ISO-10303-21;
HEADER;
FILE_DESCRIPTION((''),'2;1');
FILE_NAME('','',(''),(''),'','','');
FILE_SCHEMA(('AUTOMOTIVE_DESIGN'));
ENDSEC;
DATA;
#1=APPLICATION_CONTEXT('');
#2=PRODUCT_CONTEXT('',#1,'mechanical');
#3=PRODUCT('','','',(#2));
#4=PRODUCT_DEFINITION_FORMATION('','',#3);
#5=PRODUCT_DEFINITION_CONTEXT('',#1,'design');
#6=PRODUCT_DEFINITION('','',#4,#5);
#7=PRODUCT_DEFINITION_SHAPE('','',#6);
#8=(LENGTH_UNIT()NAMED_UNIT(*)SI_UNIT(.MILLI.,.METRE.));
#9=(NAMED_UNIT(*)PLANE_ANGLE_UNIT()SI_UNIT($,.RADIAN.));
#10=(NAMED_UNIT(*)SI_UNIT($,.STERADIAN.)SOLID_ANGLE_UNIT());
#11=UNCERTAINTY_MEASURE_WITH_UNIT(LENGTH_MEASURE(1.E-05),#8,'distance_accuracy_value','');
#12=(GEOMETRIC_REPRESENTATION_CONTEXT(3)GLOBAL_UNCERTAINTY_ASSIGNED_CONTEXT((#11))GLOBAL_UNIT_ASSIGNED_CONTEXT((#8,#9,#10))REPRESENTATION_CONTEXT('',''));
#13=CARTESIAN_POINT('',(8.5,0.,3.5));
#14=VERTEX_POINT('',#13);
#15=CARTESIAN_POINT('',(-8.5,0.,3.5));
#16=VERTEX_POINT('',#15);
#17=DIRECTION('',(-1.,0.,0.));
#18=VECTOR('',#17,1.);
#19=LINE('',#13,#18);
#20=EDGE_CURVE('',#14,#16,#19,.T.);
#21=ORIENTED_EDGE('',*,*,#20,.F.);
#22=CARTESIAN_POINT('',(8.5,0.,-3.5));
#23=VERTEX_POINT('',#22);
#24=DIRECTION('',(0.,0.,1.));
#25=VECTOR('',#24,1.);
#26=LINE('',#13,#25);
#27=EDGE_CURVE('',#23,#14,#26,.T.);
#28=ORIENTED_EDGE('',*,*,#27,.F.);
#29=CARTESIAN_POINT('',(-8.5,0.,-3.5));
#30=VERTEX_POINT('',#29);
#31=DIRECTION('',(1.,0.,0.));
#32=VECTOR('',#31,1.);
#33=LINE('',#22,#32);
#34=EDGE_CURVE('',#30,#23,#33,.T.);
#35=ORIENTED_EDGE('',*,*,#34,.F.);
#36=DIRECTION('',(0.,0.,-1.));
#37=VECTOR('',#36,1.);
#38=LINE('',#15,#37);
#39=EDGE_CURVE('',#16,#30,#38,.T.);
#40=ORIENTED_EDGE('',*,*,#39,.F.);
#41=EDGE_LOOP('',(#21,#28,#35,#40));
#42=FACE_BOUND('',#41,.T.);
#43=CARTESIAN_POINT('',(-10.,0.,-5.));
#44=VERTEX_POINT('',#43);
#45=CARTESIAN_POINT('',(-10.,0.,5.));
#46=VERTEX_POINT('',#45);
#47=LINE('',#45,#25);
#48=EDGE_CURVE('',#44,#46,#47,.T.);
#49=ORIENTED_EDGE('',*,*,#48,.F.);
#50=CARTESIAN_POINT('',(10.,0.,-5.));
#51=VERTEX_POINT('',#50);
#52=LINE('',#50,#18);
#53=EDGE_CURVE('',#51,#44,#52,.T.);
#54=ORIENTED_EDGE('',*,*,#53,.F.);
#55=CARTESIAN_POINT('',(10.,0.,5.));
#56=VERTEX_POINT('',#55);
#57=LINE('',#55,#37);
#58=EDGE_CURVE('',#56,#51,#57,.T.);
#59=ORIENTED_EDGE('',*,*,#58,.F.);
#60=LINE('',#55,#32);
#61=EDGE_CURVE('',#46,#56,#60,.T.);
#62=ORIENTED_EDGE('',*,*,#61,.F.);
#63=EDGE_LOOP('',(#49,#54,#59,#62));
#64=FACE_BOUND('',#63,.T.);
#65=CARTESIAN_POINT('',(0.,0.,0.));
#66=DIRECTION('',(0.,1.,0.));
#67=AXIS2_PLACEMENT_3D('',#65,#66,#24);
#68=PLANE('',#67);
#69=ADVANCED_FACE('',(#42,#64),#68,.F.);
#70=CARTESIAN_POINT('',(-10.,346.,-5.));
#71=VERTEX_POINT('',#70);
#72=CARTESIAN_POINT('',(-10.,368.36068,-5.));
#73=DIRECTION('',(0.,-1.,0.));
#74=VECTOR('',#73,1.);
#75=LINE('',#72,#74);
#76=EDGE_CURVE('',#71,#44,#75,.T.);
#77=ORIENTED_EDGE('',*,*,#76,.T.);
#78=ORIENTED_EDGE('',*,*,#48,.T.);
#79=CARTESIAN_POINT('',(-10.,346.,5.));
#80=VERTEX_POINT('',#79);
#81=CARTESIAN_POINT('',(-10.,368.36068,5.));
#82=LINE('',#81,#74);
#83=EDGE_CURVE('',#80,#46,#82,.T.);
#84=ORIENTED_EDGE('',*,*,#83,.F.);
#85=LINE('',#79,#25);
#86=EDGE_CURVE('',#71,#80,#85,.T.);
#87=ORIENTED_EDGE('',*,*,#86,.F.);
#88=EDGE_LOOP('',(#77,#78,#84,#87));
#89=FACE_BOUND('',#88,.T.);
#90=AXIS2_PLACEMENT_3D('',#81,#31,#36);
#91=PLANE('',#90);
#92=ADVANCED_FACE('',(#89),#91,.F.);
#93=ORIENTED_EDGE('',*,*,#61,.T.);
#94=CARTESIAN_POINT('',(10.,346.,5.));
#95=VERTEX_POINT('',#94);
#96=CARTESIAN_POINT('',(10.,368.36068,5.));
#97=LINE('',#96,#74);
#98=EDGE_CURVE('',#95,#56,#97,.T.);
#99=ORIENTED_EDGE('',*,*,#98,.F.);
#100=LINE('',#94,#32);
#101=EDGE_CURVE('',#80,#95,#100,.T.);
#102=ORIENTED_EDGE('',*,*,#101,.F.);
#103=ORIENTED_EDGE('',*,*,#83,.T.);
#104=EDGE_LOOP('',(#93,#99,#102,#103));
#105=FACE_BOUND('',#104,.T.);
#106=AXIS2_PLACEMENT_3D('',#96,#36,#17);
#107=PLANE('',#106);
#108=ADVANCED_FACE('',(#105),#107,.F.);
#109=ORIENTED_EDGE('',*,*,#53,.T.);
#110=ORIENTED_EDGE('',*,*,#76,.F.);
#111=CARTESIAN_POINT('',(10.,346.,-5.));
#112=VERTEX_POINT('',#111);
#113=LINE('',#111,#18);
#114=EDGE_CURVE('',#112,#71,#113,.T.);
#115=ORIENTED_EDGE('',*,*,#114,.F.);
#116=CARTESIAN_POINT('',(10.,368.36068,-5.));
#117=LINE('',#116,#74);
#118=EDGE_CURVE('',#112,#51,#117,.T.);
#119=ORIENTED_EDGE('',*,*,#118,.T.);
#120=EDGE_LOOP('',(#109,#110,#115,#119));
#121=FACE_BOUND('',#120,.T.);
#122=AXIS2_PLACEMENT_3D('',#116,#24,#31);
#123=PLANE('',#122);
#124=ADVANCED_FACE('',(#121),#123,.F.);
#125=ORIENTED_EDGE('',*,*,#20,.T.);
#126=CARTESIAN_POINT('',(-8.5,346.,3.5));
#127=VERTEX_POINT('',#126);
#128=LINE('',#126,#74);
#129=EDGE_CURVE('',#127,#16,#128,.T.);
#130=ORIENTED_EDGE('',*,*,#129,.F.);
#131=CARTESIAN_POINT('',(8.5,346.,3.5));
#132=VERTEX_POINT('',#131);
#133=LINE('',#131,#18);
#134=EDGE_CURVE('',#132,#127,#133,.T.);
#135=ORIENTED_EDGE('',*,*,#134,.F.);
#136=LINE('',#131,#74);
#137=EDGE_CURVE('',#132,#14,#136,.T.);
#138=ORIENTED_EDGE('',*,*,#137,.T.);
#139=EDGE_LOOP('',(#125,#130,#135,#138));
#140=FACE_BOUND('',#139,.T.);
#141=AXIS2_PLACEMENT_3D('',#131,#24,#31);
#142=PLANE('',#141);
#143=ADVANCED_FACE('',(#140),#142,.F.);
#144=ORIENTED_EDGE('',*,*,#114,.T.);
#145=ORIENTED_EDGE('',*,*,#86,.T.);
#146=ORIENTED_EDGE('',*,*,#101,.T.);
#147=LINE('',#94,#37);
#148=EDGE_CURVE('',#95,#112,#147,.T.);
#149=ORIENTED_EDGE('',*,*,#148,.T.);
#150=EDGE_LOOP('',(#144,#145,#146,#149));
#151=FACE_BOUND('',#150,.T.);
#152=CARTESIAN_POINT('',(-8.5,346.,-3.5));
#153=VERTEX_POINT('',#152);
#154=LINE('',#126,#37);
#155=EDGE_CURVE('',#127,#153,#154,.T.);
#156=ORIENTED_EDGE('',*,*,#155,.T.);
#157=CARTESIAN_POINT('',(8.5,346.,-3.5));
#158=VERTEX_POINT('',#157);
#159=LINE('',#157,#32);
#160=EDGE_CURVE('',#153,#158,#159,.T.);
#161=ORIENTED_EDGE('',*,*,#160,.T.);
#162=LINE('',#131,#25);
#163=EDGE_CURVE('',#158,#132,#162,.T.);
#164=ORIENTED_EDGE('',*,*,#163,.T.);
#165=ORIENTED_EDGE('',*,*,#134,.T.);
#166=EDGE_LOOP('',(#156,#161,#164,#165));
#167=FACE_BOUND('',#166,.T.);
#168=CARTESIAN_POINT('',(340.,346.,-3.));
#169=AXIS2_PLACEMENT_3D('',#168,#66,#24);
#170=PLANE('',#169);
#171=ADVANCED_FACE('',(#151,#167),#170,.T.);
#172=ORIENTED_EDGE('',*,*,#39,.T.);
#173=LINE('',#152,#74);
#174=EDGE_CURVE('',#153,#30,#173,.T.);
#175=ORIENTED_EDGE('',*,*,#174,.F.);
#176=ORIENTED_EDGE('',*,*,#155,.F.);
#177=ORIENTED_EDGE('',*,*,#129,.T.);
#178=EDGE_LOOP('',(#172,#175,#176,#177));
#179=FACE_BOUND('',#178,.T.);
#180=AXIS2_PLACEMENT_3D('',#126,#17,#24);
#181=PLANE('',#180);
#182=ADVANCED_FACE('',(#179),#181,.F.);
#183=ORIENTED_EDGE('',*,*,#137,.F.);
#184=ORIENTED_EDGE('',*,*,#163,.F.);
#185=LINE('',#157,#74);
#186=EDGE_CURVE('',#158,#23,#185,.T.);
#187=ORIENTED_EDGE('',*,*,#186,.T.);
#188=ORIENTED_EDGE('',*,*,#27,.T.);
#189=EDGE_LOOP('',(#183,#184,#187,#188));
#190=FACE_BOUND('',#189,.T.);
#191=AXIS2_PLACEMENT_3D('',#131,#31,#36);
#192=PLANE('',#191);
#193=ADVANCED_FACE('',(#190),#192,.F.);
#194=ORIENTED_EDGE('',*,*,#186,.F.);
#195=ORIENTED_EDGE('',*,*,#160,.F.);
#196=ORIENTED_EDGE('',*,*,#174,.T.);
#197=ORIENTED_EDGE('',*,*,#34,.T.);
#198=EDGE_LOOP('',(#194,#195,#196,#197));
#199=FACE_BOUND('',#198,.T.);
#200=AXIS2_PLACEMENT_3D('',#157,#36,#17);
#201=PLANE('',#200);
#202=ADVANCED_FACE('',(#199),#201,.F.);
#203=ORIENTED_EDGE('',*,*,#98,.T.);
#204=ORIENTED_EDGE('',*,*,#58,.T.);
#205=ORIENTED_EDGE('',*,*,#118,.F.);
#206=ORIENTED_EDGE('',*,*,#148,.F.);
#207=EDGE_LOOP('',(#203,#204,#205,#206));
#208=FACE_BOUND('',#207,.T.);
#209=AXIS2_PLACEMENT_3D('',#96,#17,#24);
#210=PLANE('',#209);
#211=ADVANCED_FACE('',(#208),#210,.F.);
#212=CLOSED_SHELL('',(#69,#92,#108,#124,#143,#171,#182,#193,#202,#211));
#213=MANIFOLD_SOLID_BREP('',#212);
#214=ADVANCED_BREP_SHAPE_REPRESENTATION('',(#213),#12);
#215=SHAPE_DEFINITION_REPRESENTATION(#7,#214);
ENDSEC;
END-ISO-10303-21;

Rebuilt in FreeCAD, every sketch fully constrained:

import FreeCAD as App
import Part
import Sketcher
Q = App.Units.Quantity


def add_polygon(sketch, points):
    """Adds a closed chain of lines whose ends are joined by coincident constraints."""
    first, n = sketch.GeometryCount, len(points)
    for a, b in zip(points, points[1:] + points[:1]):
        sketch.addGeometry(Part.LineSegment(App.Vector(*a, 0), App.Vector(*b, 0)), False)
    for i in range(n):
        sketch.addConstraint(Sketcher.Constraint("Coincident", first + i, 2, first + (i + 1) % n, 1))

doc = App.newDocument("Part")
body = doc.addObject("PartDesign::Body", "Body")

# Sketch on XZ plane
sketch1 = body.newObject("Sketcher::SketchObject", "Sketch")
sketch1.AttachmentSupport = (doc.getObject("XZ_Plane"), [""])
sketch1.MapMode = "FlatFace"
add_polygon(sketch1, [(-10, -5), (-10, 5), (10, 5), (10, -5)])  # lines 0-3
sketch1.addConstraint([
    Sketcher.Constraint("Vertical", 0),
    Sketcher.Constraint("Horizontal", 1),
    Sketcher.Constraint("Vertical", 2),
    Sketcher.Constraint("Horizontal", 3),
    Sketcher.Constraint("Symmetric", 0, 2, 2, 2, -1, 1),
    Sketcher.Constraint("DistanceX", 1, 1, 1, 2, Q("20 mm")),
    Sketcher.Constraint("DistanceY", 0, 1, 0, 2, Q("10 mm")),
])
pad1 = body.newObject("PartDesign::Pad", "Pad")
pad1.Profile = sketch1
pad1.Length = 346
pad1.Reversed = True

# Sketch on XZ plane
sketch2 = body.newObject("Sketcher::SketchObject", "Sketch001")
sketch2.AttachmentSupport = (doc.getObject("XZ_Plane"), [""])
sketch2.MapMode = "FlatFace"
add_polygon(sketch2, [(-8, 4), (-8, -4), (8, -4), (8, 4)])  # lines 0-3
sketch2.addConstraint([
    Sketcher.Constraint("Vertical", 0),
    Sketcher.Constraint("Horizontal", 1),
    Sketcher.Constraint("Vertical", 2),
    Sketcher.Constraint("Horizontal", 3),
    Sketcher.Constraint("Symmetric", 0, 2, 2, 2, -1, 1),
    Sketcher.Constraint("DistanceX", 1, 1, 1, 2, Q("17 mm")),
    Sketcher.Constraint("DistanceY", 0, 2, 0, 1, Q("7 mm")),
])
pocket1 = body.newObject("PartDesign::Pocket", "Pocket")
pocket1.Profile = sketch2
pocket1.Type = "ThroughAll"

doc.recompute()
